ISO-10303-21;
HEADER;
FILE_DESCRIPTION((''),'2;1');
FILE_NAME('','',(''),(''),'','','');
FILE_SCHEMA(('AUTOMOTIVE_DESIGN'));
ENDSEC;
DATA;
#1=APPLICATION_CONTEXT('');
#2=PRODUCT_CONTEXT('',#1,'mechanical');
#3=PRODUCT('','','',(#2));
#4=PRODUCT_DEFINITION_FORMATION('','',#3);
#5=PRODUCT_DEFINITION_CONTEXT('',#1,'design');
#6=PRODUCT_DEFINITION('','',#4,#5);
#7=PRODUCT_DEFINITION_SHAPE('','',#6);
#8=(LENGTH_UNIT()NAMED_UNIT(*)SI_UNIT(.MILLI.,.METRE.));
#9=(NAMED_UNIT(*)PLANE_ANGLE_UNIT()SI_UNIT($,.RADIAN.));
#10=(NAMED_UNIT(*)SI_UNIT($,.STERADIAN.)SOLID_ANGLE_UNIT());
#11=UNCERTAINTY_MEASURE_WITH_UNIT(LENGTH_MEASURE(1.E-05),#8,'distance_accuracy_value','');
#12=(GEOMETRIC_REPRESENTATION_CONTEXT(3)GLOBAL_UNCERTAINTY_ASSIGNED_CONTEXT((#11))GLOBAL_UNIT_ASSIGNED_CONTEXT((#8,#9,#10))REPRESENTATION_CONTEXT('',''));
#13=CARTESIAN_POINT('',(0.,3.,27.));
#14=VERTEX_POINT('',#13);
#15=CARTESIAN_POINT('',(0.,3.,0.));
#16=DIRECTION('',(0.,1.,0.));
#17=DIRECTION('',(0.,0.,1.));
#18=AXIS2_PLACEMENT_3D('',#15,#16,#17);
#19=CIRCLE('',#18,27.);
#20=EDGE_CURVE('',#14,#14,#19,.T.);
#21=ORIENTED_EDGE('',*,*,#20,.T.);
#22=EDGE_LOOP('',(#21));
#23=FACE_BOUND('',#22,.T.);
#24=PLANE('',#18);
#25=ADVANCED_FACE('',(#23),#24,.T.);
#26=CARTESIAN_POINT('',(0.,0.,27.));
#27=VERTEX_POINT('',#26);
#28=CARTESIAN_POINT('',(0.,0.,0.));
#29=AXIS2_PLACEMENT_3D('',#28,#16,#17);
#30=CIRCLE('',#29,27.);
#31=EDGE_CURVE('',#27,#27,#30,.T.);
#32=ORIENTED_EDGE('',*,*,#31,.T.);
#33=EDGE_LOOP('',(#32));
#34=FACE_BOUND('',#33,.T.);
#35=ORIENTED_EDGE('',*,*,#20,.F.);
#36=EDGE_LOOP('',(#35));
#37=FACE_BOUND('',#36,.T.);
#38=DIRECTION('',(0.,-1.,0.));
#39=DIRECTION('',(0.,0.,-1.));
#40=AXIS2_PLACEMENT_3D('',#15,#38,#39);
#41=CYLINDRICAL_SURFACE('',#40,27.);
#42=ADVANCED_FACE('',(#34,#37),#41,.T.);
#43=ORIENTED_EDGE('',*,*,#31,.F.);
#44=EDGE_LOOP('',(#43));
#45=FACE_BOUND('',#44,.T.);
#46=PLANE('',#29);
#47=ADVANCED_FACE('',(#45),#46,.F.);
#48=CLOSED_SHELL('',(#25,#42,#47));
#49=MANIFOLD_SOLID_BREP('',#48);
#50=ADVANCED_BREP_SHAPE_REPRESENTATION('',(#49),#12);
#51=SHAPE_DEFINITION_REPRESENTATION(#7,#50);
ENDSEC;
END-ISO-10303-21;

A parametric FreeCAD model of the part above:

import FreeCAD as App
import Part
import Sketcher
from FreeCAD import Vector

doc = App.newDocument("Part")
params = doc.addObject("Spreadsheet::Sheet", "Params")
for row, (alias, value) in enumerate([
    ("sketch1_diameter", "54 mm"),
    ("pad1_length", "3 mm"),
], start=1):
    params.set(f"A{row}", alias)
    params.set(f"B{row}", "=" + value)
    params.setAlias(f"B{row}", alias)

body = doc.addObject("PartDesign::Body", "Body")

# Sketch on XZ plane
sketch1 = doc.addObject("Sketcher::SketchObject", "Sketch")
body.addObject(sketch1)
sketch1.AttachmentSupport = (doc.XZ_Plane, [""])
sketch1.MapMode = "FlatFace"
sketch1.addGeometry(Part.Circle(Vector(0, 0, 0), Vector(0, 0, 1), 27), False)
sketch1.addConstraint(Sketcher.Constraint("Coincident", 0, 3, -1, 1))
sketch1.addConstraint(Sketcher.Constraint("Diameter", 0, 54.0))
sketch1.setExpression("Constraints[1]", "Params.sketch1_diameter")
pad1 = doc.addObject("PartDesign::Pad", "Pad")
body.addObject(pad1)
pad1.Profile = sketch1
pad1.setExpression("Length", "Params.pad1_length")
pad1.Reversed = True

doc.recompute()
